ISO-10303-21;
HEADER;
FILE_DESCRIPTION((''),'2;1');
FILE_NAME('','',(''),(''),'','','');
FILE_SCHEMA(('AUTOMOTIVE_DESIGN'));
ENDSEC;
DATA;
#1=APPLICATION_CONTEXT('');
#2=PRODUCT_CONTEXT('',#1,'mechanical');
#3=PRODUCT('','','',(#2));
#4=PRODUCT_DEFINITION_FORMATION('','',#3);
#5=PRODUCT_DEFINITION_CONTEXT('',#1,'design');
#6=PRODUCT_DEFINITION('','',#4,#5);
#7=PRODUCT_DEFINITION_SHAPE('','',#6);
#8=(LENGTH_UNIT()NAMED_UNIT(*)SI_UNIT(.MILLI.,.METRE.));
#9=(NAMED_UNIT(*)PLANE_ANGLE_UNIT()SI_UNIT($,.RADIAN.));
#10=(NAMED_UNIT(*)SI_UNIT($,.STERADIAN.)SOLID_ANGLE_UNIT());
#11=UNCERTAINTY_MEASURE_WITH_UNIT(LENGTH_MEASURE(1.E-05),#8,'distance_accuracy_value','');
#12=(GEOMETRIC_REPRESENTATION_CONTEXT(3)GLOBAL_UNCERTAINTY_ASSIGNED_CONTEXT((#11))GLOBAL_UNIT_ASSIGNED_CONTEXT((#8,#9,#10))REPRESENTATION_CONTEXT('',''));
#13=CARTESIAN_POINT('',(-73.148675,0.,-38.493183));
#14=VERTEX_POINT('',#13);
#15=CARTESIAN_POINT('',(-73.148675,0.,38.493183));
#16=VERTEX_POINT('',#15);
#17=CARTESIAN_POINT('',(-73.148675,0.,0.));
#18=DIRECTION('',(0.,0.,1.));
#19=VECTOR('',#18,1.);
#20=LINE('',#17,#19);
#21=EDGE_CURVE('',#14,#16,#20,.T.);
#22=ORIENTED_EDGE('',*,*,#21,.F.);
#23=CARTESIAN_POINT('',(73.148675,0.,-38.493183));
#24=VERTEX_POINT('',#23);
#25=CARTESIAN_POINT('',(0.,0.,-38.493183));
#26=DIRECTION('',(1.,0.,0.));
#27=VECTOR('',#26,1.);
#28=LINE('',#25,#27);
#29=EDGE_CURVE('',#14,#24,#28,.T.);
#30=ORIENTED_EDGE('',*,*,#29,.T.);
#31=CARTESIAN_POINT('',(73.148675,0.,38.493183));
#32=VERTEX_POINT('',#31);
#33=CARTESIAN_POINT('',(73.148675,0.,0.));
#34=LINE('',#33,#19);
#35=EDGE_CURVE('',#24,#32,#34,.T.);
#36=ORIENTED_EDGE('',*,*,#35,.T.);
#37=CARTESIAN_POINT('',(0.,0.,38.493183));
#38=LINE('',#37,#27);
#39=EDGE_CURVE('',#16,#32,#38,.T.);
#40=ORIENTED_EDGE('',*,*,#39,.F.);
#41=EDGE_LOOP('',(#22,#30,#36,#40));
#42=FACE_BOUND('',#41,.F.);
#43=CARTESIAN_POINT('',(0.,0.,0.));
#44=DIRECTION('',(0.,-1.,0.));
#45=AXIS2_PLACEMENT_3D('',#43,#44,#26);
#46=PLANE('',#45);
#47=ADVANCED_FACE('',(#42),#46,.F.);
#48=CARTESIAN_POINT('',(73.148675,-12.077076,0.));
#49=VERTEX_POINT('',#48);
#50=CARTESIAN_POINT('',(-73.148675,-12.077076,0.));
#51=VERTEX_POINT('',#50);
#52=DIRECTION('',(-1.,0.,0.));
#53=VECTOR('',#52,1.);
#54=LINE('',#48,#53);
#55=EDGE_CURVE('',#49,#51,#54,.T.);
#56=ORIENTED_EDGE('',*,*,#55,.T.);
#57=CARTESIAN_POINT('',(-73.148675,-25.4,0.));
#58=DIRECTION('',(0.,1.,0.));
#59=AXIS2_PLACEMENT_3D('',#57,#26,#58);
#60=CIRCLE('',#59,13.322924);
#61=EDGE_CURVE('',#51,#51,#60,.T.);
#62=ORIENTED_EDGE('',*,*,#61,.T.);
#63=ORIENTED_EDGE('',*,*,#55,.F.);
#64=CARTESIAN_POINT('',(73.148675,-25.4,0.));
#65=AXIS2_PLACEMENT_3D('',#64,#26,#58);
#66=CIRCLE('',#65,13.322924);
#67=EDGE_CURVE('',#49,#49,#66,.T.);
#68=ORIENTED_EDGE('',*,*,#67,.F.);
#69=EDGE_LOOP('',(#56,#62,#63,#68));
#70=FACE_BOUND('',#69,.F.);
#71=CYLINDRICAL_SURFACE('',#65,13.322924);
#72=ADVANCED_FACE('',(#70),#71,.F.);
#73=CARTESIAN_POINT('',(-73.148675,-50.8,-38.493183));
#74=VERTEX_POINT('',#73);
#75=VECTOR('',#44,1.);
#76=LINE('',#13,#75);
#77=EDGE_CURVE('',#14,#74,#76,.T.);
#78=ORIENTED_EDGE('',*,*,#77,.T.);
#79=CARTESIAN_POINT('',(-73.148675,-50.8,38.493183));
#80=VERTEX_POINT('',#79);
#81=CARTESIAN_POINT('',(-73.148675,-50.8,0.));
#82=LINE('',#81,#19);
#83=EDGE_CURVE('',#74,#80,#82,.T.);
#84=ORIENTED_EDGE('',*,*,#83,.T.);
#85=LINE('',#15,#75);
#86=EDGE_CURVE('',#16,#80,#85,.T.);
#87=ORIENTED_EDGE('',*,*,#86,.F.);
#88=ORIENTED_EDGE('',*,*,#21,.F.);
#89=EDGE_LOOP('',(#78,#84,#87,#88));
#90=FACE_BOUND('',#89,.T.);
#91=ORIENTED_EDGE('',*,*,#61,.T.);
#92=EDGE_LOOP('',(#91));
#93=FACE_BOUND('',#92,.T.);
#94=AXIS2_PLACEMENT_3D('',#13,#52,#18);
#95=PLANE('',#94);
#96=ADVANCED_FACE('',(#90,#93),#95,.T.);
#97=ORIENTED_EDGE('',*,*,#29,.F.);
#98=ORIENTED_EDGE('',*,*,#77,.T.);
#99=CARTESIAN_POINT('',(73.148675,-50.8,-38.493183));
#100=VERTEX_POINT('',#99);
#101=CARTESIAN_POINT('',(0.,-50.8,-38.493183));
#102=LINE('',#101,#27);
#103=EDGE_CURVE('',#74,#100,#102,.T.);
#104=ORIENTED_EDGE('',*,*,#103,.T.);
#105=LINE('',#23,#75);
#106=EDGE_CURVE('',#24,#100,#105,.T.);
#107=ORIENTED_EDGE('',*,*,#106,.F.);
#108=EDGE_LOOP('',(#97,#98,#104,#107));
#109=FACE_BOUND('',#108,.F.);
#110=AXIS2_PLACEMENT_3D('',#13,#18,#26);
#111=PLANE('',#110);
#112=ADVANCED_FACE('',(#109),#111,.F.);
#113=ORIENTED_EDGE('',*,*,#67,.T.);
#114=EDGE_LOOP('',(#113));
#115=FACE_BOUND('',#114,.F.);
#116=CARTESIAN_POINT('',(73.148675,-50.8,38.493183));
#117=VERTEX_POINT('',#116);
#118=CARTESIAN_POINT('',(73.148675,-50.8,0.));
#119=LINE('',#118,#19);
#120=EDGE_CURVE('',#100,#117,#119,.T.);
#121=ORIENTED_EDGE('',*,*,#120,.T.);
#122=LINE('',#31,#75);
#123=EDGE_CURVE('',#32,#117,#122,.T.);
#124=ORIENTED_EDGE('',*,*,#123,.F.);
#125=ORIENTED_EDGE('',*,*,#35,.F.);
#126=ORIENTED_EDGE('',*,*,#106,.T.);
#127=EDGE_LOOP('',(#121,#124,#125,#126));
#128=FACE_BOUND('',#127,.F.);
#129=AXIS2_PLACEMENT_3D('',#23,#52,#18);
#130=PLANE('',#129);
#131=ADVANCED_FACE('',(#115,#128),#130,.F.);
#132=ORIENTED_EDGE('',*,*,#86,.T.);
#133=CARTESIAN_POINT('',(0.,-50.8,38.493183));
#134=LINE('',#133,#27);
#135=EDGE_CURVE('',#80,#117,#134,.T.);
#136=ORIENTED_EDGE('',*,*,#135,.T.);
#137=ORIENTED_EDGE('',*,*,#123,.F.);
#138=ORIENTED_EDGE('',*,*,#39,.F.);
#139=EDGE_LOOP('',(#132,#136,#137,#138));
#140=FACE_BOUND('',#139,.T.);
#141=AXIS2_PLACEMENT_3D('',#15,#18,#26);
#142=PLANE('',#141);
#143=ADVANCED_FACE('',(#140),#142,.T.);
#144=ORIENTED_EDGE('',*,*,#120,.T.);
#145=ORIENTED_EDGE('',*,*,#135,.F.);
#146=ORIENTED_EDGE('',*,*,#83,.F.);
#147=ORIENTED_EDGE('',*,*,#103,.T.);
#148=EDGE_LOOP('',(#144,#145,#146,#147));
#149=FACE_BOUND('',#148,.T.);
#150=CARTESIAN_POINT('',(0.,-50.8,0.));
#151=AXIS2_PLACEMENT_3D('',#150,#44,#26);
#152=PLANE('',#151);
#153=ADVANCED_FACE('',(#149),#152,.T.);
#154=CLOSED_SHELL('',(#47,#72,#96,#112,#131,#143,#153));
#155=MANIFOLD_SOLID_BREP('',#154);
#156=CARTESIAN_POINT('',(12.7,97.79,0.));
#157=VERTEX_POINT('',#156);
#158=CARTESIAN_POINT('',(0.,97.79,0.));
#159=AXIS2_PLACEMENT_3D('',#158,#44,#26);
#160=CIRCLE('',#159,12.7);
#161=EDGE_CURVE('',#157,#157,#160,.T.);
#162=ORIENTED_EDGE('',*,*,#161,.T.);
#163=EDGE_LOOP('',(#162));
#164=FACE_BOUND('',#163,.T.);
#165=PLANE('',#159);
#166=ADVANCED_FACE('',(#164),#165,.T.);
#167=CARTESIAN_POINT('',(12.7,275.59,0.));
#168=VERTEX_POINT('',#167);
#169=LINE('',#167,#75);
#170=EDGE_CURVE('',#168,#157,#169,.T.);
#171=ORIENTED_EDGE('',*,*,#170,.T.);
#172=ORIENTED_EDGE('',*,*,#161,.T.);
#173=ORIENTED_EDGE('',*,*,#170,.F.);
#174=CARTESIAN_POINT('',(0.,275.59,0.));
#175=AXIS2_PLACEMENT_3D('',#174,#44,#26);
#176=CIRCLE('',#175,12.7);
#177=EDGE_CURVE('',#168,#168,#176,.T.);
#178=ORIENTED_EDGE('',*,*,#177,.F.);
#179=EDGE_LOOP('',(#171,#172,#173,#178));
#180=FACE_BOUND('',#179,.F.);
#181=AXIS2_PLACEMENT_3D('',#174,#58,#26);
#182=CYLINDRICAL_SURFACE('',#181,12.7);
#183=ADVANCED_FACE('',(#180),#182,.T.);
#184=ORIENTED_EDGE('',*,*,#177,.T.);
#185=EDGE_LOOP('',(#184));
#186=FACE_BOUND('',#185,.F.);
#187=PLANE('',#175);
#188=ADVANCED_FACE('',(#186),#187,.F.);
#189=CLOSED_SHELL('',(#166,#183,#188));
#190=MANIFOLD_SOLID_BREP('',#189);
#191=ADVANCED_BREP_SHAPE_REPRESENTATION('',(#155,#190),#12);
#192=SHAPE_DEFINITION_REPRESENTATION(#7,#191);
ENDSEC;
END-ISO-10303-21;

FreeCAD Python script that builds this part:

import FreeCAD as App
import Part
import Sketcher
from FreeCAD import Vector
Q = App.Units.Quantity

doc = App.newDocument("Part")
body = doc.addObject("PartDesign::Body", "Body")

# Sketch on XZ plane
sketch1 = body.newObject("Sketcher::SketchObject", "Sketch")
sketch1.AttachmentSupport = (doc.getObject("XZ_Plane"), [""])
sketch1.MapMode = "FlatFace"
sketch1.addGeometry(Part.LineSegment(Vector(-73, 38, 0), Vector(-73, -38, 0)), False)
sketch1.addGeometry(Part.LineSegment(Vector(-73, -38, 0), Vector(73, -38, 0)), False)
sketch1.addGeometry(Part.LineSegment(Vector(73, -38, 0), Vector(73, 38, 0)), False)
sketch1.addGeometry(Part.LineSegment(Vector(73, 38, 0), Vector(-73, 38, 0)), False)
sketch1.addConstraint(Sketcher.Constraint("Coincident", 0, 2, 1, 1))
sketch1.addConstraint(Sketcher.Constraint("Coincident", 1, 2, 2, 1))
sketch1.addConstraint(Sketcher.Constraint("Coincident", 2, 2, 3, 1))
sketch1.addConstraint(Sketcher.Constraint("Coincident", 3, 2, 0, 1))
sketch1.addConstraint(Sketcher.Constraint("Vertical", 0))
sketch1.addConstraint(Sketcher.Constraint("Horizontal", 1))
sketch1.addConstraint(Sketcher.Constraint("Vertical", 2))
sketch1.addConstraint(Sketcher.Constraint("Horizontal", 3))
sketch1.addConstraint(Sketcher.Constraint("Symmetric", 0, 2, 2, 2, -1, 1))
sketch1.addConstraint(Sketcher.Constraint("DistanceX", 1, 1, 1, 2, 146.29735))
sketch1.addConstraint(Sketcher.Constraint("DistanceY", 0, 2, 0, 1, 76.986366))
pad1 = body.newObject("PartDesign::Pad", "Pad")
pad1.Profile = sketch1
pad1.Length = Q("2 in")

# Sketch on YZ plane
sketch2 = body.newObject("Sketcher::SketchObject", "Sketch001")
sketch2.AttachmentSupport = (doc.getObject("YZ_Plane"), [""])
sketch2.MapMode = "FlatFace"
sketch2.AttachmentOffset = App.Placement(Vector(0, 0, 73.148675), App.Rotation())
sketch2.addGeometry(Part.Circle(Vector(-25, 0, 0), Vector(0, 0, 1), 13), False)
sketch2.addConstraint(Sketcher.Constraint("PointOnObject", 0, 3, -1))
sketch2.addConstraint(Sketcher.Constraint("DistanceX", 0, 3, -1, 1, Q("1 in")))
sketch2.addConstraint(Sketcher.Constraint("Diameter", 0, 26.645848))
pocket1 = body.newObject("PartDesign::Pocket", "Pocket")
pocket1.Profile = sketch2
pocket1.Length = Q("9 in")
body2 = doc.addObject("PartDesign::Body", "Body001")

# Sketch on XZ plane
sketch3 = body2.newObject("Sketcher::SketchObject", "Sketch002")
sketch3.AttachmentSupport = (doc.getObject("XZ_Plane001"), [""])
sketch3.MapMode = "FlatFace"
sketch3.AttachmentOffset = App.Placement(Vector(0, 0, -10.85 * 25.4), App.Rotation())
sketch3.addGeometry(Part.Circle(Vector(0, 0, 0), Vector(0, 0, 1), 13), False)
sketch3.addConstraint(Sketcher.Constraint("Coincident", 0, 3, -1, 1))
sketch3.addConstraint(Sketcher.Constraint("Diameter", 0, Q("1 in")))
pad2 = body2.newObject("PartDesign::Pad", "Pad001")
pad2.Profile = sketch3
pad2.Length = Q("7 in")

doc.recompute()
